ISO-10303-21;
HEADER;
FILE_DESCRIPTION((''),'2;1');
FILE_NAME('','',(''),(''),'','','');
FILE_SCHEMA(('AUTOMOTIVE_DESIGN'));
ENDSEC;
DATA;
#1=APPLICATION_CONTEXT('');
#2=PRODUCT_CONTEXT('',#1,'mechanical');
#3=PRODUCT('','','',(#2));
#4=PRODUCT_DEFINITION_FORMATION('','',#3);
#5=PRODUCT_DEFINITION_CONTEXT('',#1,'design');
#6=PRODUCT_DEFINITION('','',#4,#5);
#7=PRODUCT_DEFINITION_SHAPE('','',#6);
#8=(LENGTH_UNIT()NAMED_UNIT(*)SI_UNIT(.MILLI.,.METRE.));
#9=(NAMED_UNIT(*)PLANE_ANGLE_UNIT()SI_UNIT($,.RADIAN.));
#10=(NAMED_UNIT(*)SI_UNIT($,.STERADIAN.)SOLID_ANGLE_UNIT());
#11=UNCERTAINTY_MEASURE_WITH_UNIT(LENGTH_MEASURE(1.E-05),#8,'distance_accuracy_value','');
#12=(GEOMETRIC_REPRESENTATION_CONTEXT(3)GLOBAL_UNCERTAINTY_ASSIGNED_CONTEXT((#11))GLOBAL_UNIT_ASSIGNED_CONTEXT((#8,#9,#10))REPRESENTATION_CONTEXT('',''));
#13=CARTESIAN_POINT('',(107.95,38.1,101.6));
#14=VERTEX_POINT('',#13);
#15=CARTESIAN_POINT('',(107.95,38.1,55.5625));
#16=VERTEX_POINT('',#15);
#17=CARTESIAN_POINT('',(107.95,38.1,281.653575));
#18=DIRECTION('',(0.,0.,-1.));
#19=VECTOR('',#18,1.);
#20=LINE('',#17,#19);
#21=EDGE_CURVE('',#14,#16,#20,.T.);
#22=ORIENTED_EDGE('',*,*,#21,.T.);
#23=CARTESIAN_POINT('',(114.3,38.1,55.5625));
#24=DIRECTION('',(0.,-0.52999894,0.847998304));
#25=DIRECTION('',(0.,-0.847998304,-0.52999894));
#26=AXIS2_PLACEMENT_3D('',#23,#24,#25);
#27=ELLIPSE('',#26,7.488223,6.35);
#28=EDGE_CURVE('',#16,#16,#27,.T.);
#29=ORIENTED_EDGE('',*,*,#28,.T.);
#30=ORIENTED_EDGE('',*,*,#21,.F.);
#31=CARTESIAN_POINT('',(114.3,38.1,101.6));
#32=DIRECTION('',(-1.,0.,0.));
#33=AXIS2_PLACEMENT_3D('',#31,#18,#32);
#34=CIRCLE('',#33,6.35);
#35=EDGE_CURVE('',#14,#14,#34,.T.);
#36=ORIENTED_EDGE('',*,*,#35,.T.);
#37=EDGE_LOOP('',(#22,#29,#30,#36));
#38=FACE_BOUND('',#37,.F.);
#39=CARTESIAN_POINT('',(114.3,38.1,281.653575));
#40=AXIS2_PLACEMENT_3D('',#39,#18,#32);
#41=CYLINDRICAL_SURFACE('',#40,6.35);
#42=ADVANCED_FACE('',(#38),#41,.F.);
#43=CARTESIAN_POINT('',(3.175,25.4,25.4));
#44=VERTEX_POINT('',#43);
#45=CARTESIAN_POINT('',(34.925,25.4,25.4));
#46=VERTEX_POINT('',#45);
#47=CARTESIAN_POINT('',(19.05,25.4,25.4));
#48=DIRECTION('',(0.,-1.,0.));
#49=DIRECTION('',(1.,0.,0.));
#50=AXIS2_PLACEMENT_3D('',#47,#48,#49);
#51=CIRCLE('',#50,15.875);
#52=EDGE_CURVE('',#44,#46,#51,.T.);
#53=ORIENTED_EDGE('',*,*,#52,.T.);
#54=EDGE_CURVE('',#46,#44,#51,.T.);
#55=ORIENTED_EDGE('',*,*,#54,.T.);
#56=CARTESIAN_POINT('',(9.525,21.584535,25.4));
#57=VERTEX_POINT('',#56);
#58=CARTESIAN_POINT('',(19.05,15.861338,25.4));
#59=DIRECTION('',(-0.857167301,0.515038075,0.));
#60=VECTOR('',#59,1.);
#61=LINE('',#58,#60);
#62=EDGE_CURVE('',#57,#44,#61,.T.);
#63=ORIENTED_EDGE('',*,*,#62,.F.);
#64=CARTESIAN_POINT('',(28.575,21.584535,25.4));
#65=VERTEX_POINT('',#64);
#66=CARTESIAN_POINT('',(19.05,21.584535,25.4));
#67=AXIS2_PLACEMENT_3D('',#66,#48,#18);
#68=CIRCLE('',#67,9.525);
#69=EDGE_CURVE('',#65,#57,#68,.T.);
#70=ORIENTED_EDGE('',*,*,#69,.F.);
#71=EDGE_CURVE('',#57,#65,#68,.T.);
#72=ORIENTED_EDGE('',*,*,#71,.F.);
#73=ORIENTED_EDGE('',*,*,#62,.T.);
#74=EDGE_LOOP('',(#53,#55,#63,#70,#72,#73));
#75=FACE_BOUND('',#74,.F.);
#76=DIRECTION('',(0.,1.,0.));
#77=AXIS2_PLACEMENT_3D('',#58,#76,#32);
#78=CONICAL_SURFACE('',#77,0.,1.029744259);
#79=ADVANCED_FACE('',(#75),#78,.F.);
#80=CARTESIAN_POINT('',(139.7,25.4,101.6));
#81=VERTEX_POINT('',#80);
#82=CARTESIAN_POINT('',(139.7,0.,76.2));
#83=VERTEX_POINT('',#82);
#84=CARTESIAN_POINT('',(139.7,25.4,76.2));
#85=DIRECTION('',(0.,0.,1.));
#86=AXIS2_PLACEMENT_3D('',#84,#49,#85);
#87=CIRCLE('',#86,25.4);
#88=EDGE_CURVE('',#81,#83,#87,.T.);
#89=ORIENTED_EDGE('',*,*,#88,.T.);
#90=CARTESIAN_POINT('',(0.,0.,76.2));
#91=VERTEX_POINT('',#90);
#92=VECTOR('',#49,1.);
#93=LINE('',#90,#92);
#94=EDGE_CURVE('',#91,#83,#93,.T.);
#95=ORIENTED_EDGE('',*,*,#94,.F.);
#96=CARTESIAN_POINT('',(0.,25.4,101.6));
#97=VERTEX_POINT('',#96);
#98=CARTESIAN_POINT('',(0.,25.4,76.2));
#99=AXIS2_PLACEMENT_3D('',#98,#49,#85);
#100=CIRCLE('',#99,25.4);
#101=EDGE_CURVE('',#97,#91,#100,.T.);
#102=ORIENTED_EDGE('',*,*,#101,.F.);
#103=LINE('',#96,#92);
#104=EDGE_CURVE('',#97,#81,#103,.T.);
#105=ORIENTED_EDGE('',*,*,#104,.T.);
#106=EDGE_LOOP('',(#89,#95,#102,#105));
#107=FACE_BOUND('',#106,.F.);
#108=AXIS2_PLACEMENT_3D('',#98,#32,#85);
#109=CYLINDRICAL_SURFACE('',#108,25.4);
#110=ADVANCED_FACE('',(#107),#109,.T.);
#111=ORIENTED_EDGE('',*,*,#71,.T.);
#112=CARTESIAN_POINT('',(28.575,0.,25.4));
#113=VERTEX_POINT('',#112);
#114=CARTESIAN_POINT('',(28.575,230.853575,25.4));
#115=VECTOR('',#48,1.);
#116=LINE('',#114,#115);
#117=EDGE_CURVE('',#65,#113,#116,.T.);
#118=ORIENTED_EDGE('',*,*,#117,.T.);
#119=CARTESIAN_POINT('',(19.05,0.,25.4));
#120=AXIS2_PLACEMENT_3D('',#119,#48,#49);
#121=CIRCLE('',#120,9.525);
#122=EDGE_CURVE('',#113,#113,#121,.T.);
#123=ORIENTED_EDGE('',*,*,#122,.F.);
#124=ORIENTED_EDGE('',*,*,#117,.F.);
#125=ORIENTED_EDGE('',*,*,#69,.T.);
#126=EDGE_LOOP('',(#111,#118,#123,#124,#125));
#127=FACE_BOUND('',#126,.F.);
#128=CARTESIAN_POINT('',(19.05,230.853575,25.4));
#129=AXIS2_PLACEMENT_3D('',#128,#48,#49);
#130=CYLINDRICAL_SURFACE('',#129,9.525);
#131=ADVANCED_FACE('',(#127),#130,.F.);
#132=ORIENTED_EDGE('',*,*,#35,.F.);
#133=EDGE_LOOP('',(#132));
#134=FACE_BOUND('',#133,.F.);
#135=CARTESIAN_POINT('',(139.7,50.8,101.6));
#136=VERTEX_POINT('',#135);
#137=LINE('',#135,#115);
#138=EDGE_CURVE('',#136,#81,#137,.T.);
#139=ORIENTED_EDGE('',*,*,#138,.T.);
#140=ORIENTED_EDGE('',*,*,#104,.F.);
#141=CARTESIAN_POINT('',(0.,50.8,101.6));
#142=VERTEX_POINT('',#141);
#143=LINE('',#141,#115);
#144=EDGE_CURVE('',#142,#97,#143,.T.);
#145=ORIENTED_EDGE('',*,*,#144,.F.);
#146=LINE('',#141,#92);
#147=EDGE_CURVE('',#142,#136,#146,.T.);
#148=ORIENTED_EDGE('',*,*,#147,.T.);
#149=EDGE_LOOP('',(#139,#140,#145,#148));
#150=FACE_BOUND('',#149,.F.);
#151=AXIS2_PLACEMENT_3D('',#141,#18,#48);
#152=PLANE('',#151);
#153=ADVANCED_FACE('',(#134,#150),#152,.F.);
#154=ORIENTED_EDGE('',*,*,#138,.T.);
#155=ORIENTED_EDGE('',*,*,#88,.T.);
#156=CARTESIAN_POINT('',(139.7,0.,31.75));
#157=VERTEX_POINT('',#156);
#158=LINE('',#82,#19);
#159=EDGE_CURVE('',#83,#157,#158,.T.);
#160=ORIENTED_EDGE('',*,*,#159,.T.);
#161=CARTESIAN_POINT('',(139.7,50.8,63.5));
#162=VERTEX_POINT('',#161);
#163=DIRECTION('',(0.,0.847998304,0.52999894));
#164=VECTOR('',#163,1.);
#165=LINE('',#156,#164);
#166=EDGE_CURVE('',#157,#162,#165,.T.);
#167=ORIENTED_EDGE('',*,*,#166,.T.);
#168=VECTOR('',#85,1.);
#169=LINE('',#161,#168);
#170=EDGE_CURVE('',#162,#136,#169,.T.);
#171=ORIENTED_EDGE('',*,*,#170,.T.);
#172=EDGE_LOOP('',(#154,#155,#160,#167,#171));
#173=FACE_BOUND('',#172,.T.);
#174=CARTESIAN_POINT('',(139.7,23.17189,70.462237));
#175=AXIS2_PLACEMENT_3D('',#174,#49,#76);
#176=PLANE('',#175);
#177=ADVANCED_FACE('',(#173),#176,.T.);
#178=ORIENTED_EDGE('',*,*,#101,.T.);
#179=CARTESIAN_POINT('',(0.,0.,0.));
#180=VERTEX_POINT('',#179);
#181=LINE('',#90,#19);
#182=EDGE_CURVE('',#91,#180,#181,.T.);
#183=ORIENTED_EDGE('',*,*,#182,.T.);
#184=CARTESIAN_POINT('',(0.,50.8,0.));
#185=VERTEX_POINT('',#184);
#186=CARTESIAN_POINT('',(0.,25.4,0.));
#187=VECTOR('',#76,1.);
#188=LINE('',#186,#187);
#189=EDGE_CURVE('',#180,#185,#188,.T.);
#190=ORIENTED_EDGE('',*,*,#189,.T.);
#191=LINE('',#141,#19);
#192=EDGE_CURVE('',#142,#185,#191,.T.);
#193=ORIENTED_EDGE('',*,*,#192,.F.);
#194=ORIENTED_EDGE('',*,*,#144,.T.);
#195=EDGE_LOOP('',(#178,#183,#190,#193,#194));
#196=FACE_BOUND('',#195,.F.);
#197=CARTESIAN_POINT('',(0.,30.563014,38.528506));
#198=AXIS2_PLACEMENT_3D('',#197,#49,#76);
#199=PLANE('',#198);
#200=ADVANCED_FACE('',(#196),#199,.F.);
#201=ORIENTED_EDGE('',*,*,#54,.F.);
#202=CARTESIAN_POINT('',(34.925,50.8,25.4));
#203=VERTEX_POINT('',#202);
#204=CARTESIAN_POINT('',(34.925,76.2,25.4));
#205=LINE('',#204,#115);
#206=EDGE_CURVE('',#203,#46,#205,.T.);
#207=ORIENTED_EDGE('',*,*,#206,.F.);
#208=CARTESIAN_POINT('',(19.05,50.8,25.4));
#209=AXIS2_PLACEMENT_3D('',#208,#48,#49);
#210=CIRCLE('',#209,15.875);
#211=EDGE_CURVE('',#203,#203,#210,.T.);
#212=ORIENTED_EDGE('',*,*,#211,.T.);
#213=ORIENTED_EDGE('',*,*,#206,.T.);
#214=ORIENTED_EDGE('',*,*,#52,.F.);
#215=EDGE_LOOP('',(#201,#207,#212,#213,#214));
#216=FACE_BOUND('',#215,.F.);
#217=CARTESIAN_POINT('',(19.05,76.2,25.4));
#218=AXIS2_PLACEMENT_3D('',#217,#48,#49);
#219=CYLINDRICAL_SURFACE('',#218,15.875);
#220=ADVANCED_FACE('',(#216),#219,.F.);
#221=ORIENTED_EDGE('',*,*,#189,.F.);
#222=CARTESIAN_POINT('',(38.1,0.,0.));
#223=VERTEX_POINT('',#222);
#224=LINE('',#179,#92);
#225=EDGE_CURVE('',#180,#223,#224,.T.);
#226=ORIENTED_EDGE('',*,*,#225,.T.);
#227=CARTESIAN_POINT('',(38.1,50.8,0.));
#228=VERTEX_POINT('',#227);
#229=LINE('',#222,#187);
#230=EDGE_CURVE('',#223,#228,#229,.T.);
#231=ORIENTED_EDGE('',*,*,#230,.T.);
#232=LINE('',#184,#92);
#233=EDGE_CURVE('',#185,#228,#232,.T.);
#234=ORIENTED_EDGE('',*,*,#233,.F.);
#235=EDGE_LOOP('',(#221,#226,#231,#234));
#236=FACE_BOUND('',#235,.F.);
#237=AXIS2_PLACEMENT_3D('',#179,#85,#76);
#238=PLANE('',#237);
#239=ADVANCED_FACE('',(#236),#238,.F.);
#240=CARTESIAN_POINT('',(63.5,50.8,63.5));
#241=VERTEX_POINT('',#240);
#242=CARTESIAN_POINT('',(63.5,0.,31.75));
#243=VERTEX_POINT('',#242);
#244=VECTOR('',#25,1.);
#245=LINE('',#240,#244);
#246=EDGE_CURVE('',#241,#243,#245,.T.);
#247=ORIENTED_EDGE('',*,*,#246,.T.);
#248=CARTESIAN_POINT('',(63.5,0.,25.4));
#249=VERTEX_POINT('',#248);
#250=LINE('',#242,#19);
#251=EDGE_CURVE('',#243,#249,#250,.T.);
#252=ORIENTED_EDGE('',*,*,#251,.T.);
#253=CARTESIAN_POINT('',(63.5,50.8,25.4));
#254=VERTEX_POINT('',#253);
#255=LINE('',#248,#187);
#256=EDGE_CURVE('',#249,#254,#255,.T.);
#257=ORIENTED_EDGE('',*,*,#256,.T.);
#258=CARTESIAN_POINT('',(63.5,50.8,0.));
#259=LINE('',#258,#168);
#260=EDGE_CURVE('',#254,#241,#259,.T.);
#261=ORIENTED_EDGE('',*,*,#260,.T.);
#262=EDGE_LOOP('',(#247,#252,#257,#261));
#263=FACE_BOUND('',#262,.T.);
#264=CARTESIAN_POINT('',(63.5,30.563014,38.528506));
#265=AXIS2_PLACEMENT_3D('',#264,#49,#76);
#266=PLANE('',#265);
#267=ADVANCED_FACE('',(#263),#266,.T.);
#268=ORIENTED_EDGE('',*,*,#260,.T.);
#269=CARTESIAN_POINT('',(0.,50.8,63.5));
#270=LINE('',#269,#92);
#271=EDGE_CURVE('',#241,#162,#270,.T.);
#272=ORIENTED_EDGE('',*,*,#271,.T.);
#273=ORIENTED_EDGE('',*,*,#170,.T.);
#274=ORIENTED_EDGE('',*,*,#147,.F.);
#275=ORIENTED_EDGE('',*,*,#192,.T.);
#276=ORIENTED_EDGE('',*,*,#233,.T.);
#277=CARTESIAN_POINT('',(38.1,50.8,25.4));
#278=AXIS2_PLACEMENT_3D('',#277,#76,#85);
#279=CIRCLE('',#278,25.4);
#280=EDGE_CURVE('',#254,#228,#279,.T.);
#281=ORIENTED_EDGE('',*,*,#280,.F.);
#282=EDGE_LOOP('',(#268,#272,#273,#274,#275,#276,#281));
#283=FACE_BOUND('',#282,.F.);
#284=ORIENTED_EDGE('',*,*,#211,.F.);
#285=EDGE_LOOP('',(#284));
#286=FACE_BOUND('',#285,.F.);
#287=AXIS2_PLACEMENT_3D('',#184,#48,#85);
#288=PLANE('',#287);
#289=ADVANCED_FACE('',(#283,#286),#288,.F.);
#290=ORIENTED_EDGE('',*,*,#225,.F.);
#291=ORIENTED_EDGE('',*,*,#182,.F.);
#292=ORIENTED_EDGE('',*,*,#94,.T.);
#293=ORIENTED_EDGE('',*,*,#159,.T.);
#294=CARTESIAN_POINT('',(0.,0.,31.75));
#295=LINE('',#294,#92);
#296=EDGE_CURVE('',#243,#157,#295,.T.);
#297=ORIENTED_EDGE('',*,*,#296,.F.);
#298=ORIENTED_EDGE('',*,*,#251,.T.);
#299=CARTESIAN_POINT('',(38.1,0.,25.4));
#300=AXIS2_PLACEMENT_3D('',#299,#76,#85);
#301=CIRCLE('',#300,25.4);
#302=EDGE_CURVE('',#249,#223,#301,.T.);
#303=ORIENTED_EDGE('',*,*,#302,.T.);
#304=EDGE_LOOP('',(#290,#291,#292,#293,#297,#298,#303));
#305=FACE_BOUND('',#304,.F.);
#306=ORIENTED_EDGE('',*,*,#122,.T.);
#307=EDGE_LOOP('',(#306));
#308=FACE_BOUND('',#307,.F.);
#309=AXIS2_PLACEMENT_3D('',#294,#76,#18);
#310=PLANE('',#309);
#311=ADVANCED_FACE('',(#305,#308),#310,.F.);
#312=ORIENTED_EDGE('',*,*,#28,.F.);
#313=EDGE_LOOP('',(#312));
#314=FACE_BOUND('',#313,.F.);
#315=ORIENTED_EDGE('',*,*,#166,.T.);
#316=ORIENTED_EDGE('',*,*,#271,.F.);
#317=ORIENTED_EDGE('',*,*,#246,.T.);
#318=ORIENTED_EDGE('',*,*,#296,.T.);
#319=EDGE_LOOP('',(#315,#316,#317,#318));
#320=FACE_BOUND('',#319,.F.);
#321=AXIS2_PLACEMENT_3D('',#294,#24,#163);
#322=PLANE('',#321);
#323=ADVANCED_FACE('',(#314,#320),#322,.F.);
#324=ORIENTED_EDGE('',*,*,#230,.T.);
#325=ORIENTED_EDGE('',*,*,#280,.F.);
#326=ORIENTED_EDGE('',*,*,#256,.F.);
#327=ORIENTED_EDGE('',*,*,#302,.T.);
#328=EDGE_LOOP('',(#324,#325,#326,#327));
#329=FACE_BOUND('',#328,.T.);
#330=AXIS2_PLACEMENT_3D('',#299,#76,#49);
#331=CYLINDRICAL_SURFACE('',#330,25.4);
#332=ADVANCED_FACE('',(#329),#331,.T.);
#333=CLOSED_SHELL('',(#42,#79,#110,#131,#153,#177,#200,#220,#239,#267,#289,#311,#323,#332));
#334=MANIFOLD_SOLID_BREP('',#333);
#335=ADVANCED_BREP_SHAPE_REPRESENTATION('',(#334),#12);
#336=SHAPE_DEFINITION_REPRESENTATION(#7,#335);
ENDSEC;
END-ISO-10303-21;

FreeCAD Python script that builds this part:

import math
import FreeCAD as App
import Part
import Sketcher
Q = App.Units.Quantity


def edges_at(feature, points):
    """Names of the edges that pass closest to the given points."""
    edges = feature.Shape.Edges
    near = lambda p: min(range(len(edges)), key=lambda i: edges[i].distToShape(Part.Vertex(*p))[0])
    return sorted({f"Edge{near(p) + 1}" for p in points})


def add_polygon(sketch, points):
    """Adds a closed chain of lines whose ends are joined by coincident constraints."""
    first, n = sketch.GeometryCount, len(points)
    for a, b in zip(points, points[1:] + points[:1]):
        sketch.addGeometry(Part.LineSegment(App.Vector(*a, 0), App.Vector(*b, 0)), False)
    for i in range(n):
        sketch.addConstraint(Sketcher.Constraint("Coincident", first + i, 2, first + (i + 1) % n, 1))

doc = App.newDocument("Part")
body = doc.addObject("PartDesign::Body", "Body")

# Sketch on YZ plane
sketch1 = doc.addObject("Sketcher::SketchObject", "Sketch")
body.addObject(sketch1)
sketch1.AttachmentSupport = (doc.YZ_Plane, [""])
sketch1.MapMode = "FlatFace"
sketch1.addGeometry([
    Part.LineSegment(App.Vector(0, 32, 0), App.Vector(51, 64, 0)),  # 0
    Part.LineSegment(App.Vector(51, 64, 0), App.Vector(51, 102, 0)),  # 1
    Part.LineSegment(App.Vector(51, 102, 0), App.Vector(25, 102, 0)),  # 2
    Part.ArcOfCircle(Part.Circle(App.Vector(25, 76, 0), App.Vector(0, 0, 1), 25), math.radians(90), math.radians(180)),  # 3
    Part.LineSegment(App.Vector(0, 76, 0), App.Vector(0, 32, 0)),  # 4
], False)
sketch1.addConstraint([
    Sketcher.Constraint("Coincident", 0, 2, 1, 1),
    Sketcher.Constraint("Coincident", 1, 2, 2, 1),
    Sketcher.Constraint("Tangent", 2, 2, 3, 1),
    Sketcher.Constraint("Tangent", 3, 2, 4, 1),
    Sketcher.Constraint("Coincident", 4, 2, 0, 1),
    Sketcher.Constraint("Vertical", 1),
    Sketcher.Constraint("Horizontal", 2),
    Sketcher.Constraint("Vertical", 4),
    Sketcher.Constraint("PointOnObject", 3, 2, -2),
    Sketcher.Constraint("Radius", 3, Q("1 in")),
    Sketcher.Constraint("DistanceX", 2, 2, 2, 1, Q("1 in")),
    Sketcher.Constraint("DistanceY", 1, 1, 1, 2, Q("1.5 in")),
    Sketcher.Constraint("DistanceY", -1, 1, 3, 3, Q("3 in")),
    Sketcher.Constraint("DistanceY", 4, 2, 4, 1, Q("1.75 in")),
])
pad1 = doc.addObject("PartDesign::Pad", "Pad")
body.addObject(pad1)
pad1.Profile = sketch1
pad1.Length = Q("5.5 in")

# Sketch on YZ plane
sketch2 = doc.addObject("Sketcher::SketchObject", "Sketch001")
body.addObject(sketch2)
sketch2.AttachmentSupport = (doc.YZ_Plane, [""])
sketch2.MapMode = "FlatFace"
add_polygon(sketch2, [(0, 32), (0, 0), (51, 0), (51, 64)])  # lines 0-3
sketch2.addConstraint([
    Sketcher.Constraint("Vertical", 0),
    Sketcher.Constraint("Horizontal", 1),
    Sketcher.Constraint("Vertical", 2),
    Sketcher.Constraint("Coincident", 0, 2, -1, 1),
    Sketcher.Constraint("DistanceX", 1, 1, 1, 2, Q("2 in")),
    Sketcher.Constraint("DistanceY", 2, 1, 2, 2, Q("2.5 in")),
    Sketcher.Constraint("DistanceY", 0, 2, 0, 1, Q("1.25 in")),
])
pad2 = doc.addObject("PartDesign::Pad", "Pad001")
body.addObject(pad2)
pad2.Profile = sketch2
pad2.Length = Q("2.5 in")
doc.recompute()

fillet = doc.addObject("PartDesign::Fillet", "Fillet")
body.addObject(fillet)
fillet.Base = (pad2, edges_at(pad2, [(63.5, 25.4, 0)]))
fillet.Radius = Q("1 in")

# Sketch on XZ plane
sketch3 = doc.addObject("Sketcher::SketchObject", "Sketch002")
body.addObject(sketch3)
sketch3.AttachmentSupport = (doc.XZ_Plane, [""])
sketch3.MapMode = "FlatFace"
sketch3.AttachmentOffset = App.Placement(App.Vector(0, 0, -2 * 25.4), App.Rotation())
sketch3.addGeometry(Part.Circle(App.Vector(19, 25, 0), App.Vector(0, 0, 1), 10), False)
sketch3.addConstraint([
    Sketcher.Constraint("Diameter", 0, Q("0.75 in")),
    Sketcher.Constraint("DistanceY", -1, 1, 0, 3, Q("1 in")),
    Sketcher.Constraint("DistanceX", -1, 1, 0, 3, Q("0.75 in")),
])
doc.recompute()
hole = doc.addObject("PartDesign::Hole", "Hole")
body.addObject(hole)
hole.Profile = sketch3
hole.ThreadType = "None"
hole.Diameter = Q("0.75 in")
hole.DepthType = "ThroughAll"
hole.Reversed = True

# Sketch on XZ plane
sketch4 = doc.addObject("Sketcher::SketchObject", "Sketch003")
body.addObject(sketch4)
sketch4.AttachmentSupport = (doc.XZ_Plane, [""])
sketch4.MapMode = "FlatFace"
sketch4.AttachmentOffset = App.Placement(App.Vector(0, 0, -2 * 25.4), App.Rotation())
sketch4.addGeometry(Part.Circle(App.Vector(19, 25, 0), App.Vector(0, 0, 1), 16), False)
sketch4.addConstraint([
    Sketcher.Constraint("Diameter", 0, Q("1.25 in")),
    Sketcher.Constraint("DistanceY", -1, 1, 0, 3, Q("1 in")),
    Sketcher.Constraint("DistanceX", -1, 1, 0, 3, Q("0.75 in")),
])
doc.recompute()
hole2 = doc.addObject("PartDesign::Hole", "Hole001")
body.addObject(hole2)
hole2.Profile = sketch4
hole2.ThreadType = "None"
hole2.Diameter = Q("1.25 in")
hole2.DepthType = "Dimension"
hole2.Depth = Q("1 in")
hole2.DrillPoint = "Angled"
hole2.DrillPointAngle = 118
hole2.Reversed = True

# Sketch on XY plane
sketch5 = doc.addObject("Sketcher::SketchObject", "Sketch004")
body.addObject(sketch5)
sketch5.AttachmentSupport = (doc.XY_Plane, [""])
sketch5.MapMode = "FlatFace"
sketch5.AttachmentOffset = App.Placement(App.Vector(0, 0, 4 * 25.4), App.Rotation())
sketch5.addGeometry(Part.Circle(App.Vector(114, 38, 0), App.Vector(0, 0, 1), 6), False)
sketch5.addConstraint([
    Sketcher.Constraint("Diameter", 0, Q("0.5 in")),
    Sketcher.Constraint("DistanceX", -1, 1, 0, 3, Q("4.5 in")),
    Sketcher.Constraint("DistanceY", -1, 1, 0, 3, Q("1.5 in")),
])
doc.recompute()
hole3 = doc.addObject("PartDesign::Hole", "Hole002")
body.addObject(hole3)
hole3.Profile = sketch5
hole3.ThreadType = "None"
hole3.Diameter = Q("0.5 in")
hole3.DepthType = "ThroughAll"

doc.recompute()
